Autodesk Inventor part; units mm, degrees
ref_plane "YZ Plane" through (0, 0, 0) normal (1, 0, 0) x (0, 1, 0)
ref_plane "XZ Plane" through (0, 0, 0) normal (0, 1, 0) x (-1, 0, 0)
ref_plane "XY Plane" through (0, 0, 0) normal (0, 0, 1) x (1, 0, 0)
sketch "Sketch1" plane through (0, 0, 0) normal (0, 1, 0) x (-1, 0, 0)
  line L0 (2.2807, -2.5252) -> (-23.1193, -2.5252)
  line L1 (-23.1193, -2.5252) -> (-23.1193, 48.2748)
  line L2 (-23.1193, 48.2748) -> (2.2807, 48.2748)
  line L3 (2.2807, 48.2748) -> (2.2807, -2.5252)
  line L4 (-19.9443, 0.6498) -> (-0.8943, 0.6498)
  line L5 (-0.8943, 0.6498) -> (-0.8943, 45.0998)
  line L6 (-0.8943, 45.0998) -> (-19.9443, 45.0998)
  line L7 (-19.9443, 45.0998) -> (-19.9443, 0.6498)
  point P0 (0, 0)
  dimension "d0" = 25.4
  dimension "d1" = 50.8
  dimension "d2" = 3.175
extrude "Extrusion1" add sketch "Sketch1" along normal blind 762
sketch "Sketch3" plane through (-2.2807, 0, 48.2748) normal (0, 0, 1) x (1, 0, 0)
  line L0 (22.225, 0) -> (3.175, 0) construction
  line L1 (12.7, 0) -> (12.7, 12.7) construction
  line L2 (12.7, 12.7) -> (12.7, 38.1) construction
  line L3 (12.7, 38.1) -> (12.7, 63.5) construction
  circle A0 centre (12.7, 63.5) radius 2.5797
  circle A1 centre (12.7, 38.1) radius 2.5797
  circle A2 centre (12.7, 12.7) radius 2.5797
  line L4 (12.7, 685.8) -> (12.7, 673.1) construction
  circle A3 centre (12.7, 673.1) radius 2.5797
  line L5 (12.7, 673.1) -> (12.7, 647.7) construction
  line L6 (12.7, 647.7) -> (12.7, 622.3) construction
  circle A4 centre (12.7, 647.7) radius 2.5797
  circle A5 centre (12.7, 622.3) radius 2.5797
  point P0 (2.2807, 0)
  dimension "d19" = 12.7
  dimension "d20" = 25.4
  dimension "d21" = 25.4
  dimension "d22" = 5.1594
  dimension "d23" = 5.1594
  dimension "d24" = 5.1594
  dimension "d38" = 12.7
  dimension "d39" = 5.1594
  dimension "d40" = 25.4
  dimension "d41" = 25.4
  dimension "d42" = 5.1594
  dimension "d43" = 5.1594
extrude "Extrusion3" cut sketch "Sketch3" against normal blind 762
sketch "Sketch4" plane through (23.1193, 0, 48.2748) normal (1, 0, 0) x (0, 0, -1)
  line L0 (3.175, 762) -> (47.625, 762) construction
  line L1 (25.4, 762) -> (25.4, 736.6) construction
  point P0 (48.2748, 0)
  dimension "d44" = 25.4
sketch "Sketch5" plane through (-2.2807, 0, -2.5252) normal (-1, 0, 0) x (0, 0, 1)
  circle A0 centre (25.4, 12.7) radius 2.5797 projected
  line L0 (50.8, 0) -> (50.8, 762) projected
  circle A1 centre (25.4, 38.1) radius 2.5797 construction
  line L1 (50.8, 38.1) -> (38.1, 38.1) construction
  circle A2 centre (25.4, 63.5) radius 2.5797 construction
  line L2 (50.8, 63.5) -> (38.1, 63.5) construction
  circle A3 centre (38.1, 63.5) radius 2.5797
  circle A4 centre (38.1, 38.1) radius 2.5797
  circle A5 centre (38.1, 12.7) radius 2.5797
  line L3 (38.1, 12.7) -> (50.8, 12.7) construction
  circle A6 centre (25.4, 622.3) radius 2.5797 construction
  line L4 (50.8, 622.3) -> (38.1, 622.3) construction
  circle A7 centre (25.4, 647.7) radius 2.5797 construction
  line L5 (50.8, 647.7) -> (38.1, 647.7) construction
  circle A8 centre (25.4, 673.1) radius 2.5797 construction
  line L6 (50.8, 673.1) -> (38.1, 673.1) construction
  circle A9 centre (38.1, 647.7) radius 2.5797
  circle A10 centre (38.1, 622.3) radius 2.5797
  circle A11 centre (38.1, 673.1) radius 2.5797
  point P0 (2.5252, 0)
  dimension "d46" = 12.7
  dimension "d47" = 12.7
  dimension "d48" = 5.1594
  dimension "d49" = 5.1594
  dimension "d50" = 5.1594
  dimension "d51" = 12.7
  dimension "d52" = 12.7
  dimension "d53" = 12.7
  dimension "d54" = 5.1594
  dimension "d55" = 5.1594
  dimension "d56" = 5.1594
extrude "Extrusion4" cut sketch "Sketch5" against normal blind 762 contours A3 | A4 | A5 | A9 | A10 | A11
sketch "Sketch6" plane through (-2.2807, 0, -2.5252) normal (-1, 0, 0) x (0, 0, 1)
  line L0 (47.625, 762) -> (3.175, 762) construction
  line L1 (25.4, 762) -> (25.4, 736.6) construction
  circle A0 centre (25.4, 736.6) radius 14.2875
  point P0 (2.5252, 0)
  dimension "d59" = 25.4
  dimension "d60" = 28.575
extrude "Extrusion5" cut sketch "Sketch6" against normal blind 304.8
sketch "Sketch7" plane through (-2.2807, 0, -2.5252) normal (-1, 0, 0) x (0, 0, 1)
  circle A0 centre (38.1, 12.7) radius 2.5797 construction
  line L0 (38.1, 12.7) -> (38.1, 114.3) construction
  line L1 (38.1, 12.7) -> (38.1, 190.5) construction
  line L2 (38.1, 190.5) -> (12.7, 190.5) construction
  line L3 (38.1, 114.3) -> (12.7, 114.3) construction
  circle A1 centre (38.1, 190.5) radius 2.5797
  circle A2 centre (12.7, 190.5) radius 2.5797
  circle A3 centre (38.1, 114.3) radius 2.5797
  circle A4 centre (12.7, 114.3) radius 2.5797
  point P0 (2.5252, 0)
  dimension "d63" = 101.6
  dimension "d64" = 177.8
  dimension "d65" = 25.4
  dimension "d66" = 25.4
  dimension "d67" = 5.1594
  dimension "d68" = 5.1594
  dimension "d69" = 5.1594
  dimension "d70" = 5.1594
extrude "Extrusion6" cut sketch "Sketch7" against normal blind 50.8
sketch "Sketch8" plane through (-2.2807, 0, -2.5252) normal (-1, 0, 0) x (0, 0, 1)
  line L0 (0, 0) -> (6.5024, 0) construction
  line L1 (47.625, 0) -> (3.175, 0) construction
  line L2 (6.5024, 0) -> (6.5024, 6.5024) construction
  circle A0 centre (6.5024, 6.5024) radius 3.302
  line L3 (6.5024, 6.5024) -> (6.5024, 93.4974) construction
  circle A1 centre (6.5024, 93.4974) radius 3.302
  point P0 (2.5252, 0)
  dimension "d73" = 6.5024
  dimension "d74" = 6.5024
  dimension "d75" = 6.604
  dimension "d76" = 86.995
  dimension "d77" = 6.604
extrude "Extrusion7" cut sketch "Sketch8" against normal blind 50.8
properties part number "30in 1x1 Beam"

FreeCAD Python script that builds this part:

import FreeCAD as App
import Part
import Sketcher

V = App.Vector
Q = App.Units.Quantity


def add_polygon(sketch, points):
    """Adds a closed chain of lines whose ends are joined by coincident constraints."""
    first, n = sketch.GeometryCount, len(points)
    for a, b in zip(points, points[1:] + points[:1]):
        sketch.addGeometry(Part.LineSegment(App.Vector(*a, 0), App.Vector(*b, 0)), False)
    for i in range(n):
        sketch.addConstraint(Sketcher.Constraint("Coincident", first + i, 2, first + (i + 1) % n, 1))

doc = App.newDocument("Part")
body = doc.addObject("PartDesign::Body", "Body")

sketch1 = body.newObject("Sketcher::SketchObject", "Sketch")
sketch1.AttachmentSupport = (doc.getObject("XZ_Plane"), [""])
sketch1.MapMode = "FlatFace"
add_polygon(sketch1, [(23, -3), (-2, -3), (-2, 48), (23, 48)])
add_polygon(sketch1, [(1, 1), (20, 1), (20, 45), (1, 45)])
sketch1.addConstraint([
    Sketcher.Constraint("Horizontal", 0),
    Sketcher.Constraint("Vertical", 1),
    Sketcher.Constraint("Horizontal", 2),
    Sketcher.Constraint("Vertical", 3),
    Sketcher.Constraint("Horizontal", 4),
    Sketcher.Constraint("Vertical", 5),
    Sketcher.Constraint("Horizontal", 6),
    Sketcher.Constraint("Vertical", 7),
    Sketcher.Constraint("DistanceX", 0, 2, 0, 1, Q("1 in")),
    Sketcher.Constraint("DistanceY", 1, 1, 1, 2, Q("2 in")),
    Sketcher.Constraint("DistanceX", 4, 2, 3, 2, Q("0.125 in")),
    Sketcher.Constraint("DistanceY", 3, 2, 4, 2, Q("0.125 in")),
    Sketcher.Constraint("DistanceY", 5, 2, 2, 2, Q("0.125 in")),
    Sketcher.Constraint("DistanceX", 1, 2, 6, 2, Q("0.125 in")),
    Sketcher.Constraint("DistanceX", 0, 2, -1, 1, Q("0.0898 in")),
    Sketcher.Constraint("DistanceY", 0, 2, -1, 1, Q("2.5252 mm")),
])
pad1 = body.newObject("PartDesign::Pad", "Pad")
pad1.Profile = sketch1
pad1.Length = Q("30 in")
pad1.Reversed = True

sketch2 = body.newObject("Sketcher::SketchObject", "Sketch001")
sketch2.AttachmentSupport = (doc.getObject("XY_Plane"), [""])
sketch2.MapMode = "FlatFace"
sketch2.AttachmentOffset = App.Placement(V(0, 0, 48.2748), App.Rotation())
sketch2.addGeometry([
    Part.Circle(V(10.4, 63.5, 0), V(0, 0, 1), 2.6),
    Part.Circle(V(10.4, 38.1, 0), V(0, 0, 1), 2.6),
    Part.Circle(V(10.4, 12.7, 0), V(0, 0, 1), 2.6),
    Part.Circle(V(10.4, 673.1, 0), V(0, 0, 1), 2.6),
    Part.Circle(V(10.4, 647.7, 0), V(0, 0, 1), 2.6),
    Part.Circle(V(10.4, 622.3, 0), V(0, 0, 1), 2.6),
], False)
sketch2.addConstraint([
    Sketcher.Constraint("Equal", 0, 1),
    Sketcher.Constraint("Equal", 1, 2),
    Sketcher.Constraint("Equal", 2, 3),
    Sketcher.Constraint("Equal", 3, 4),
    Sketcher.Constraint("Equal", 4, 5),
    Sketcher.Constraint("Vertical", 0, 3, 1, 3),
    Sketcher.Constraint("Vertical", 1, 3, 2, 3),
    Sketcher.Constraint("Vertical", 2, 3, 3, 3),
    Sketcher.Constraint("Vertical", 3, 3, 4, 3),
    Sketcher.Constraint("Vertical", 4, 3, 5, 3),
    Sketcher.Constraint("Diameter", 0, Q("0.203126 in")),
    Sketcher.Constraint("DistanceY", 1, 3, 0, 3, Q("1 in")),
    Sketcher.Constraint("DistanceY", 2, 3, 1, 3, Q("1 in")),
    Sketcher.Constraint("DistanceY", 4, 3, 3, 3, Q("1 in")),
    Sketcher.Constraint("DistanceY", 5, 3, 4, 3, Q("1 in")),
    Sketcher.Constraint("DistanceY", -1, 1, 2, 3, Q("0.5 in")),
    Sketcher.Constraint("DistanceY", 0, 3, 3, 3, Q("24 in")),
    Sketcher.Constraint("DistanceX", -1, 1, 0, 3, Q("0.4102 in")),
])
pocket1 = body.newObject("PartDesign::Pocket", "Pocket")
pocket1.Profile = sketch2
pocket1.Length = Q("30 in")

sketch3 = body.newObject("Sketcher::SketchObject", "Sketch002")
sketch3.AttachmentSupport = (doc.getObject("YZ_Plane"), [""])
sketch3.MapMode = "FlatFace"
sketch3.AttachmentOffset = App.Placement(V(0, 0, -0.0897913 * 25.4), App.Rotation())
sketch3.addGeometry([
    Part.Circle(V(63.5, 35.6, 0), V(0, 0, 1), 2.6),
    Part.Circle(V(38.1, 35.6, 0), V(0, 0, 1), 2.6),
    Part.Circle(V(12.7, 35.6, 0), V(0, 0, 1), 2.6),
    Part.Circle(V(647.7, 35.6, 0), V(0, 0, 1), 2.6),
    Part.Circle(V(622.3, 35.6, 0), V(0, 0, 1), 2.6),
    Part.Circle(V(673.1, 35.6, 0), V(0, 0, 1), 2.6),
], False)
sketch3.addConstraint([
    Sketcher.Constraint("Equal", 0, 1),
    Sketcher.Constraint("Equal", 1, 2),
    Sketcher.Constraint("Equal", 2, 3),
    Sketcher.Constraint("Equal", 3, 4),
    Sketcher.Constraint("Equal", 4, 5),
    Sketcher.Constraint("Horizontal", 0, 3, 1, 3),
    Sketcher.Constraint("Horizontal", 1, 3, 2, 3),
    Sketcher.Constraint("Horizontal", 2, 3, 3, 3),
    Sketcher.Constraint("Horizontal", 3, 3, 4, 3),
    Sketcher.Constraint("Horizontal", 4, 3, 5, 3),
    Sketcher.Constraint("Diameter", 0, Q("0.203126 in")),
    Sketcher.Constraint("DistanceX", -1, 1, 2, 3, Q("0.5 in")),
    Sketcher.Constraint("DistanceX", 1, 3, 0, 3, Q("1 in")),
    Sketcher.Constraint("DistanceX", 2, 3, 1, 3, Q("1 in")),
    Sketcher.Constraint("DistanceX", 0, 3, 3, 3, Q("23 in")),
    Sketcher.Constraint("DistanceX", 4, 3, 3, 3, Q("1 in")),
    Sketcher.Constraint("DistanceX", 3, 3, 5, 3, Q("1 in")),
    Sketcher.Constraint("DistanceY", -1, 1, 0, 3, Q("35.5748 mm")),
])
pocket2 = body.newObject("PartDesign::Pocket", "Pocket001")
pocket2.Profile = sketch3
pocket2.Length = Q("30 in")
pocket2.Reversed = True

sketch4 = body.newObject("Sketcher::SketchObject", "Sketch003")
sketch4.AttachmentSupport = (doc.getObject("YZ_Plane"), [""])
sketch4.MapMode = "FlatFace"
sketch4.AttachmentOffset = App.Placement(V(0, 0, -0.0897913 * 25.4), App.Rotation())
sketch4.addGeometry(Part.Circle(V(737, 23, 0), V(0, 0, 1), 14), False)
sketch4.addConstraint([
    Sketcher.Constraint("Diameter", 0, Q("1.125 in")),
    Sketcher.Constraint("DistanceX", -1, 1, 0, 3, Q("29 in")),
    Sketcher.Constraint("DistanceY", -1, 1, 0, 3, Q("22.8748 mm")),
])
pocket3 = body.newObject("PartDesign::Pocket", "Pocket002")
pocket3.Profile = sketch4
pocket3.Length = Q("12 in")
pocket3.Reversed = True

sketch5 = body.newObject("Sketcher::SketchObject", "Sketch004")
sketch5.AttachmentSupport = (doc.getObject("YZ_Plane"), [""])
sketch5.MapMode = "FlatFace"
sketch5.AttachmentOffset = App.Placement(V(0, 0, -0.0897913 * 25.4), App.Rotation())
sketch5.addGeometry([
    Part.Circle(V(190.5, 35.6, 0), V(0, 0, 1), 2.6),
    Part.Circle(V(190.5, 10.2, 0), V(0, 0, 1), 2.6),
    Part.Circle(V(114.3, 35.6, 0), V(0, 0, 1), 2.6),
    Part.Circle(V(114.3, 10.2, 0), V(0, 0, 1), 2.6),
], False)
sketch5.addConstraint([
    Sketcher.Constraint("Equal", 0, 1),
    Sketcher.Constraint("Equal", 1, 2),
    Sketcher.Constraint("Equal", 2, 3),
    Sketcher.Constraint("Horizontal", 0, 3, 2, 3),
    Sketcher.Constraint("Horizontal", 1, 3, 3, 3),
    Sketcher.Constraint("Vertical", 0, 3, 1, 3),
    Sketcher.Constraint("Vertical", 2, 3, 3, 3),
    Sketcher.Constraint("Diameter", 0, Q("0.203126 in")),
    Sketcher.Constraint("DistanceY", 1, 3, 0, 3, Q("1 in")),
    Sketcher.Constraint("DistanceX", 2, 3, 0, 3, Q("3 in")),
    Sketcher.Constraint("DistanceX", -1, 1, 0, 3, Q("7.5 in")),
    Sketcher.Constraint("DistanceY", -1, 1, 0, 3, Q("35.5748 mm")),
])
pocket4 = body.newObject("PartDesign::Pocket", "Pocket003")
pocket4.Profile = sketch5
pocket4.Length = Q("2 in")
pocket4.Reversed = True

sketch6 = body.newObject("Sketcher::SketchObject", "Sketch005")
sketch6.AttachmentSupport = (doc.getObject("YZ_Plane"), [""])
sketch6.MapMode = "FlatFace"
sketch6.AttachmentOffset = App.Placement(V(0, 0, -0.0897913 * 25.4), App.Rotation())
sketch6.addGeometry([
    Part.Circle(V(6.5, 4, 0), V(0, 0, 1), 3.3),
    Part.Circle(V(93.5, 4, 0), V(0, 0, 1), 3.3),
], False)
sketch6.addConstraint([
    Sketcher.Constraint("Equal", 0, 1),
    Sketcher.Constraint("Horizontal", 0, 3, 1, 3),
    Sketcher.Constraint("Diameter", 0, Q("0.26 in")),
    Sketcher.Constraint("DistanceX", -1, 1, 0, 3, Q("0.256 in")),
    Sketcher.Constraint("DistanceX", 0, 3, 1, 3, Q("3.425 in")),
    Sketcher.Constraint("DistanceY", -1, 1, 0, 3, Q("3.9772 mm")),
])
pocket5 = body.newObject("PartDesign::Pocket", "Pocket004")
pocket5.Profile = sketch6
pocket5.Length = Q("2 in")
pocket5.Reversed = True

doc.recompute()
